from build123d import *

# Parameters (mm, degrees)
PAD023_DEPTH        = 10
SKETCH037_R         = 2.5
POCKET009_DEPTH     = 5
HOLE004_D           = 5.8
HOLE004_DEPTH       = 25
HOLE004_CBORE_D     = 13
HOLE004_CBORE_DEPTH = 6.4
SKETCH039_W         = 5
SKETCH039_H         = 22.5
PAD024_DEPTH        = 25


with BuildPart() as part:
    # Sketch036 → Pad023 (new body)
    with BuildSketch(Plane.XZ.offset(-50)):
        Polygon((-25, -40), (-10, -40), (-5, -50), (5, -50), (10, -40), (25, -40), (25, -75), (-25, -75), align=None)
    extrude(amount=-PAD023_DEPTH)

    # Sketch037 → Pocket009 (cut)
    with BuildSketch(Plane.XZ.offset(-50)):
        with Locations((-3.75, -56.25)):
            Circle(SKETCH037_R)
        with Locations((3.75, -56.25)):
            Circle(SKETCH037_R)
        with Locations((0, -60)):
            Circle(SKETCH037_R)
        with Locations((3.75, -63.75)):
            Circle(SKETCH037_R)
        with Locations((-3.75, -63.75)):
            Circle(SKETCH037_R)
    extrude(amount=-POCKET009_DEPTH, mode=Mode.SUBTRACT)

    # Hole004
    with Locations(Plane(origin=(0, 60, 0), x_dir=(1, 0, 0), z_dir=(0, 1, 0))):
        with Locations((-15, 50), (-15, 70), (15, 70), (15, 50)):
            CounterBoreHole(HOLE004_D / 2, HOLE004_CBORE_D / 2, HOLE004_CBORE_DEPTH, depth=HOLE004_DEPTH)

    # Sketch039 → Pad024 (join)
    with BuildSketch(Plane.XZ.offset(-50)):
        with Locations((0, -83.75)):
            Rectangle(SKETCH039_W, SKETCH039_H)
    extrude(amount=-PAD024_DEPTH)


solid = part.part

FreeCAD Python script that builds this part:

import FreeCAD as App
import Part
import Sketcher

V = App.Vector
Q = App.Units.Quantity


def add_polygon(sketch, points):
    """Adds a closed chain of lines whose ends are joined by coincident constraints."""
    first, n = sketch.GeometryCount, len(points)
    for a, b in zip(points, points[1:] + points[:1]):
        sketch.addGeometry(Part.LineSegment(App.Vector(*a, 0), App.Vector(*b, 0)), False)
    for i in range(n):
        sketch.addConstraint(Sketcher.Constraint("Coincident", first + i, 2, first + (i + 1) % n, 1))

doc = App.newDocument("Part")
body = doc.addObject("PartDesign::Body", "Body")

sketch1 = body.newObject("Sketcher::SketchObject", "Sketch")
sketch1.AttachmentSupport = (doc.getObject("XZ_Plane"), [""])
sketch1.MapMode = "FlatFace"
sketch1.AttachmentOffset = App.Placement(V(0, 0, -50), App.Rotation())
add_polygon(sketch1, [(-10, -40), (-25, -40), (-25, -75), (25, -75), (25, -40), (10, -40), (5, -50), (-5, -50)])
sketch1.addConstraint(Sketcher.Constraint("Horizontal", 0))
sketch1.addConstraint(Sketcher.Constraint("Vertical", 1))
sketch1.addConstraint(Sketcher.Constraint("Horizontal", 2))
sketch1.addConstraint(Sketcher.Constraint("Vertical", 3))
sketch1.addConstraint(Sketcher.Constraint("Horizontal", 4))
sketch1.addConstraint(Sketcher.Constraint("Horizontal", 6))
sketch1.addConstraint(Sketcher.Constraint("Symmetric", 0, 2, 3, 2, -2))
sketch1.addConstraint(Sketcher.Constraint("Equal", 0, 4))
sketch1.addConstraint(Sketcher.Constraint("Equal", 5, 7))
sketch1.addConstraint(Sketcher.Constraint("DistanceX", 0, 2, 0, 1, Q("15 mm")))
sketch1.addConstraint(Sketcher.Constraint("DistanceX", 2, 1, 2, 2, Q("50 mm")))
sketch1.addConstraint(Sketcher.Constraint("DistanceX", 6, 2, 6, 1, Q("10 mm")))
sketch1.addConstraint(Sketcher.Constraint("DistanceY", 1, 2, 1, 1, Q("35 mm")))
sketch1.addConstraint(Sketcher.Constraint("DistanceY", 0, 2, -1, 1, Q("40 mm")))
sketch1.addConstraint(Sketcher.Constraint("DistanceY", 5, 2, -1, 1, Q("50 mm")))
pad1 = body.newObject("PartDesign::Pad", "Pad")
pad1.Profile = sketch1
pad1.Length = 10
pad1.Reversed = True

sketch2 = body.newObject("Sketcher::SketchObject", "Sketch001")
sketch2.AttachmentSupport = (doc.getObject("XZ_Plane"), [""])
sketch2.MapMode = "FlatFace"
sketch2.AttachmentOffset = App.Placement(V(0, 0, -50), App.Rotation())
sketch2.addGeometry(Part.Circle(V(-3.8, -56.2, 0), V(0, 0, 1), 2.5), False)
sketch2.addGeometry(Part.Circle(V(3.8, -56.2, 0), V(0, 0, 1), 2.5), False)
sketch2.addGeometry(Part.Circle(V(0, -60, 0), V(0, 0, 1), 2.5), False)
sketch2.addGeometry(Part.Circle(V(3.8, -63.8, 0), V(0, 0, 1), 2.5), False)
sketch2.addGeometry(Part.Circle(V(-3.8, -63.8, 0), V(0, 0, 1), 2.5), False)
sketch2.addConstraint(Sketcher.Constraint("Equal", 0, 1))
sketch2.addConstraint(Sketcher.Constraint("Equal", 1, 2))
sketch2.addConstraint(Sketcher.Constraint("Equal", 2, 3))
sketch2.addConstraint(Sketcher.Constraint("Equal", 3, 4))
sketch2.addConstraint(Sketcher.Constraint("Symmetric", 0, 3, 1, 3, -2))
sketch2.addConstraint(Sketcher.Constraint("Symmetric", 3, 3, 4, 3, -2))
sketch2.addConstraint(Sketcher.Constraint("PointOnObject", 2, 3, -2))
sketch2.addConstraint(Sketcher.Constraint("Vertical", 1, 3, 3, 3))
sketch2.addConstraint(Sketcher.Constraint("Diameter", 0, Q("5 mm")))
sketch2.addConstraint(Sketcher.Constraint("DistanceY", 2, 3, -1, 1, Q("60 mm")))
sketch2.addConstraint(Sketcher.Constraint("DistanceX", 0, 3, 1, 3, Q("7.5 mm")))
sketch2.addConstraint(Sketcher.Constraint("DistanceY", 3, 3, 1, 3, Q("7.5 mm")))
sketch2.addConstraint(Sketcher.Constraint("DistanceY", 0, 3, -1, 1, Q("56.25 mm")))
pocket1 = body.newObject("PartDesign::Pocket", "Pocket")
pocket1.Profile = sketch2
pocket1.Length = 5

sketch3 = body.newObject("Sketcher::SketchObject", "Sketch002")
sketch3.AttachmentSupport = (doc.getObject("XZ_Plane"), [""])
sketch3.MapMode = "FlatFace"
sketch3.AttachmentOffset = App.Placement(V(0, 0, -60), App.Rotation())
sketch3.addGeometry(Part.Circle(V(-15, -50, 0), V(0, 0, 1), 2.9), False)
sketch3.addGeometry(Part.Circle(V(-15, -70, 0), V(0, 0, 1), 2.9), False)
sketch3.addGeometry(Part.Circle(V(15, -70, 0), V(0, 0, 1), 2.9), False)
sketch3.addGeometry(Part.Circle(V(15, -50, 0), V(0, 0, 1), 2.9), False)
sketch3.addConstraint(Sketcher.Constraint("Equal", 0, 1))
sketch3.addConstraint(Sketcher.Constraint("Equal", 1, 2))
sketch3.addConstraint(Sketcher.Constraint("Equal", 2, 3))
sketch3.addConstraint(Sketcher.Constraint("Symmetric", 1, 3, 2, 3, -2))
sketch3.addConstraint(Sketcher.Constraint("Symmetric", 0, 3, 3, 3, -2))
sketch3.addConstraint(Sketcher.Constraint("Vertical", 0, 3, 1, 3))
sketch3.addConstraint(Sketcher.Constraint("Diameter", 0, Q("5.8 mm")))
sketch3.addConstraint(Sketcher.Constraint("DistanceX", 0, 3, -1, 1, Q("15 mm")))
sketch3.addConstraint(Sketcher.Constraint("DistanceY", 0, 3, -1, 1, Q("50 mm")))
sketch3.addConstraint(Sketcher.Constraint("DistanceY", 1, 3, -1, 1, Q("70 mm")))
doc.recompute()
hole = body.newObject("PartDesign::Hole", "Hole")
hole.Profile = sketch3
hole.ThreadType = "None"
hole.Diameter = 5.8
hole.DepthType = "Dimension"
hole.Depth = 25
hole.DrillPoint = "Flat"
hole.HoleCutType = "Counterbore"
hole.HoleCutDiameter = 13
hole.HoleCutDepth = 6.4
hole.Reversed = True

sketch4 = body.newObject("Sketcher::SketchObject", "Sketch003")
sketch4.AttachmentSupport = (doc.getObject("XZ_Plane"), [""])
sketch4.MapMode = "FlatFace"
sketch4.AttachmentOffset = App.Placement(V(0, 0, -50), App.Rotation())
add_polygon(sketch4, [(-2, -72), (-2, -95), (2, -95), (2, -72)])
sketch4.addConstraint(Sketcher.Constraint("Vertical", 0))
sketch4.addConstraint(Sketcher.Constraint("Horizontal", 1))
sketch4.addConstraint(Sketcher.Constraint("Vertical", 2))
sketch4.addConstraint(Sketcher.Constraint("Horizontal", 3))
sketch4.addConstraint(Sketcher.Constraint("DistanceX", 1, 1, 1, 2, Q("5 mm")))
sketch4.addConstraint(Sketcher.Constraint("DistanceY", 0, 2, 0, 1, Q("22.5 mm")))
sketch4.addConstraint(Sketcher.Constraint("DistanceY", 0, 2, -1, 1, Q("95 mm")))
sketch4.addConstraint(Sketcher.Constraint("DistanceX", 0, 2, -1, 1, Q("2.5 mm")))
pad2 = body.newObject("PartDesign::Pad", "Pad001")
pad2.Profile = sketch4
pad2.Length = 25
pad2.Reversed = True

doc.recompute()
